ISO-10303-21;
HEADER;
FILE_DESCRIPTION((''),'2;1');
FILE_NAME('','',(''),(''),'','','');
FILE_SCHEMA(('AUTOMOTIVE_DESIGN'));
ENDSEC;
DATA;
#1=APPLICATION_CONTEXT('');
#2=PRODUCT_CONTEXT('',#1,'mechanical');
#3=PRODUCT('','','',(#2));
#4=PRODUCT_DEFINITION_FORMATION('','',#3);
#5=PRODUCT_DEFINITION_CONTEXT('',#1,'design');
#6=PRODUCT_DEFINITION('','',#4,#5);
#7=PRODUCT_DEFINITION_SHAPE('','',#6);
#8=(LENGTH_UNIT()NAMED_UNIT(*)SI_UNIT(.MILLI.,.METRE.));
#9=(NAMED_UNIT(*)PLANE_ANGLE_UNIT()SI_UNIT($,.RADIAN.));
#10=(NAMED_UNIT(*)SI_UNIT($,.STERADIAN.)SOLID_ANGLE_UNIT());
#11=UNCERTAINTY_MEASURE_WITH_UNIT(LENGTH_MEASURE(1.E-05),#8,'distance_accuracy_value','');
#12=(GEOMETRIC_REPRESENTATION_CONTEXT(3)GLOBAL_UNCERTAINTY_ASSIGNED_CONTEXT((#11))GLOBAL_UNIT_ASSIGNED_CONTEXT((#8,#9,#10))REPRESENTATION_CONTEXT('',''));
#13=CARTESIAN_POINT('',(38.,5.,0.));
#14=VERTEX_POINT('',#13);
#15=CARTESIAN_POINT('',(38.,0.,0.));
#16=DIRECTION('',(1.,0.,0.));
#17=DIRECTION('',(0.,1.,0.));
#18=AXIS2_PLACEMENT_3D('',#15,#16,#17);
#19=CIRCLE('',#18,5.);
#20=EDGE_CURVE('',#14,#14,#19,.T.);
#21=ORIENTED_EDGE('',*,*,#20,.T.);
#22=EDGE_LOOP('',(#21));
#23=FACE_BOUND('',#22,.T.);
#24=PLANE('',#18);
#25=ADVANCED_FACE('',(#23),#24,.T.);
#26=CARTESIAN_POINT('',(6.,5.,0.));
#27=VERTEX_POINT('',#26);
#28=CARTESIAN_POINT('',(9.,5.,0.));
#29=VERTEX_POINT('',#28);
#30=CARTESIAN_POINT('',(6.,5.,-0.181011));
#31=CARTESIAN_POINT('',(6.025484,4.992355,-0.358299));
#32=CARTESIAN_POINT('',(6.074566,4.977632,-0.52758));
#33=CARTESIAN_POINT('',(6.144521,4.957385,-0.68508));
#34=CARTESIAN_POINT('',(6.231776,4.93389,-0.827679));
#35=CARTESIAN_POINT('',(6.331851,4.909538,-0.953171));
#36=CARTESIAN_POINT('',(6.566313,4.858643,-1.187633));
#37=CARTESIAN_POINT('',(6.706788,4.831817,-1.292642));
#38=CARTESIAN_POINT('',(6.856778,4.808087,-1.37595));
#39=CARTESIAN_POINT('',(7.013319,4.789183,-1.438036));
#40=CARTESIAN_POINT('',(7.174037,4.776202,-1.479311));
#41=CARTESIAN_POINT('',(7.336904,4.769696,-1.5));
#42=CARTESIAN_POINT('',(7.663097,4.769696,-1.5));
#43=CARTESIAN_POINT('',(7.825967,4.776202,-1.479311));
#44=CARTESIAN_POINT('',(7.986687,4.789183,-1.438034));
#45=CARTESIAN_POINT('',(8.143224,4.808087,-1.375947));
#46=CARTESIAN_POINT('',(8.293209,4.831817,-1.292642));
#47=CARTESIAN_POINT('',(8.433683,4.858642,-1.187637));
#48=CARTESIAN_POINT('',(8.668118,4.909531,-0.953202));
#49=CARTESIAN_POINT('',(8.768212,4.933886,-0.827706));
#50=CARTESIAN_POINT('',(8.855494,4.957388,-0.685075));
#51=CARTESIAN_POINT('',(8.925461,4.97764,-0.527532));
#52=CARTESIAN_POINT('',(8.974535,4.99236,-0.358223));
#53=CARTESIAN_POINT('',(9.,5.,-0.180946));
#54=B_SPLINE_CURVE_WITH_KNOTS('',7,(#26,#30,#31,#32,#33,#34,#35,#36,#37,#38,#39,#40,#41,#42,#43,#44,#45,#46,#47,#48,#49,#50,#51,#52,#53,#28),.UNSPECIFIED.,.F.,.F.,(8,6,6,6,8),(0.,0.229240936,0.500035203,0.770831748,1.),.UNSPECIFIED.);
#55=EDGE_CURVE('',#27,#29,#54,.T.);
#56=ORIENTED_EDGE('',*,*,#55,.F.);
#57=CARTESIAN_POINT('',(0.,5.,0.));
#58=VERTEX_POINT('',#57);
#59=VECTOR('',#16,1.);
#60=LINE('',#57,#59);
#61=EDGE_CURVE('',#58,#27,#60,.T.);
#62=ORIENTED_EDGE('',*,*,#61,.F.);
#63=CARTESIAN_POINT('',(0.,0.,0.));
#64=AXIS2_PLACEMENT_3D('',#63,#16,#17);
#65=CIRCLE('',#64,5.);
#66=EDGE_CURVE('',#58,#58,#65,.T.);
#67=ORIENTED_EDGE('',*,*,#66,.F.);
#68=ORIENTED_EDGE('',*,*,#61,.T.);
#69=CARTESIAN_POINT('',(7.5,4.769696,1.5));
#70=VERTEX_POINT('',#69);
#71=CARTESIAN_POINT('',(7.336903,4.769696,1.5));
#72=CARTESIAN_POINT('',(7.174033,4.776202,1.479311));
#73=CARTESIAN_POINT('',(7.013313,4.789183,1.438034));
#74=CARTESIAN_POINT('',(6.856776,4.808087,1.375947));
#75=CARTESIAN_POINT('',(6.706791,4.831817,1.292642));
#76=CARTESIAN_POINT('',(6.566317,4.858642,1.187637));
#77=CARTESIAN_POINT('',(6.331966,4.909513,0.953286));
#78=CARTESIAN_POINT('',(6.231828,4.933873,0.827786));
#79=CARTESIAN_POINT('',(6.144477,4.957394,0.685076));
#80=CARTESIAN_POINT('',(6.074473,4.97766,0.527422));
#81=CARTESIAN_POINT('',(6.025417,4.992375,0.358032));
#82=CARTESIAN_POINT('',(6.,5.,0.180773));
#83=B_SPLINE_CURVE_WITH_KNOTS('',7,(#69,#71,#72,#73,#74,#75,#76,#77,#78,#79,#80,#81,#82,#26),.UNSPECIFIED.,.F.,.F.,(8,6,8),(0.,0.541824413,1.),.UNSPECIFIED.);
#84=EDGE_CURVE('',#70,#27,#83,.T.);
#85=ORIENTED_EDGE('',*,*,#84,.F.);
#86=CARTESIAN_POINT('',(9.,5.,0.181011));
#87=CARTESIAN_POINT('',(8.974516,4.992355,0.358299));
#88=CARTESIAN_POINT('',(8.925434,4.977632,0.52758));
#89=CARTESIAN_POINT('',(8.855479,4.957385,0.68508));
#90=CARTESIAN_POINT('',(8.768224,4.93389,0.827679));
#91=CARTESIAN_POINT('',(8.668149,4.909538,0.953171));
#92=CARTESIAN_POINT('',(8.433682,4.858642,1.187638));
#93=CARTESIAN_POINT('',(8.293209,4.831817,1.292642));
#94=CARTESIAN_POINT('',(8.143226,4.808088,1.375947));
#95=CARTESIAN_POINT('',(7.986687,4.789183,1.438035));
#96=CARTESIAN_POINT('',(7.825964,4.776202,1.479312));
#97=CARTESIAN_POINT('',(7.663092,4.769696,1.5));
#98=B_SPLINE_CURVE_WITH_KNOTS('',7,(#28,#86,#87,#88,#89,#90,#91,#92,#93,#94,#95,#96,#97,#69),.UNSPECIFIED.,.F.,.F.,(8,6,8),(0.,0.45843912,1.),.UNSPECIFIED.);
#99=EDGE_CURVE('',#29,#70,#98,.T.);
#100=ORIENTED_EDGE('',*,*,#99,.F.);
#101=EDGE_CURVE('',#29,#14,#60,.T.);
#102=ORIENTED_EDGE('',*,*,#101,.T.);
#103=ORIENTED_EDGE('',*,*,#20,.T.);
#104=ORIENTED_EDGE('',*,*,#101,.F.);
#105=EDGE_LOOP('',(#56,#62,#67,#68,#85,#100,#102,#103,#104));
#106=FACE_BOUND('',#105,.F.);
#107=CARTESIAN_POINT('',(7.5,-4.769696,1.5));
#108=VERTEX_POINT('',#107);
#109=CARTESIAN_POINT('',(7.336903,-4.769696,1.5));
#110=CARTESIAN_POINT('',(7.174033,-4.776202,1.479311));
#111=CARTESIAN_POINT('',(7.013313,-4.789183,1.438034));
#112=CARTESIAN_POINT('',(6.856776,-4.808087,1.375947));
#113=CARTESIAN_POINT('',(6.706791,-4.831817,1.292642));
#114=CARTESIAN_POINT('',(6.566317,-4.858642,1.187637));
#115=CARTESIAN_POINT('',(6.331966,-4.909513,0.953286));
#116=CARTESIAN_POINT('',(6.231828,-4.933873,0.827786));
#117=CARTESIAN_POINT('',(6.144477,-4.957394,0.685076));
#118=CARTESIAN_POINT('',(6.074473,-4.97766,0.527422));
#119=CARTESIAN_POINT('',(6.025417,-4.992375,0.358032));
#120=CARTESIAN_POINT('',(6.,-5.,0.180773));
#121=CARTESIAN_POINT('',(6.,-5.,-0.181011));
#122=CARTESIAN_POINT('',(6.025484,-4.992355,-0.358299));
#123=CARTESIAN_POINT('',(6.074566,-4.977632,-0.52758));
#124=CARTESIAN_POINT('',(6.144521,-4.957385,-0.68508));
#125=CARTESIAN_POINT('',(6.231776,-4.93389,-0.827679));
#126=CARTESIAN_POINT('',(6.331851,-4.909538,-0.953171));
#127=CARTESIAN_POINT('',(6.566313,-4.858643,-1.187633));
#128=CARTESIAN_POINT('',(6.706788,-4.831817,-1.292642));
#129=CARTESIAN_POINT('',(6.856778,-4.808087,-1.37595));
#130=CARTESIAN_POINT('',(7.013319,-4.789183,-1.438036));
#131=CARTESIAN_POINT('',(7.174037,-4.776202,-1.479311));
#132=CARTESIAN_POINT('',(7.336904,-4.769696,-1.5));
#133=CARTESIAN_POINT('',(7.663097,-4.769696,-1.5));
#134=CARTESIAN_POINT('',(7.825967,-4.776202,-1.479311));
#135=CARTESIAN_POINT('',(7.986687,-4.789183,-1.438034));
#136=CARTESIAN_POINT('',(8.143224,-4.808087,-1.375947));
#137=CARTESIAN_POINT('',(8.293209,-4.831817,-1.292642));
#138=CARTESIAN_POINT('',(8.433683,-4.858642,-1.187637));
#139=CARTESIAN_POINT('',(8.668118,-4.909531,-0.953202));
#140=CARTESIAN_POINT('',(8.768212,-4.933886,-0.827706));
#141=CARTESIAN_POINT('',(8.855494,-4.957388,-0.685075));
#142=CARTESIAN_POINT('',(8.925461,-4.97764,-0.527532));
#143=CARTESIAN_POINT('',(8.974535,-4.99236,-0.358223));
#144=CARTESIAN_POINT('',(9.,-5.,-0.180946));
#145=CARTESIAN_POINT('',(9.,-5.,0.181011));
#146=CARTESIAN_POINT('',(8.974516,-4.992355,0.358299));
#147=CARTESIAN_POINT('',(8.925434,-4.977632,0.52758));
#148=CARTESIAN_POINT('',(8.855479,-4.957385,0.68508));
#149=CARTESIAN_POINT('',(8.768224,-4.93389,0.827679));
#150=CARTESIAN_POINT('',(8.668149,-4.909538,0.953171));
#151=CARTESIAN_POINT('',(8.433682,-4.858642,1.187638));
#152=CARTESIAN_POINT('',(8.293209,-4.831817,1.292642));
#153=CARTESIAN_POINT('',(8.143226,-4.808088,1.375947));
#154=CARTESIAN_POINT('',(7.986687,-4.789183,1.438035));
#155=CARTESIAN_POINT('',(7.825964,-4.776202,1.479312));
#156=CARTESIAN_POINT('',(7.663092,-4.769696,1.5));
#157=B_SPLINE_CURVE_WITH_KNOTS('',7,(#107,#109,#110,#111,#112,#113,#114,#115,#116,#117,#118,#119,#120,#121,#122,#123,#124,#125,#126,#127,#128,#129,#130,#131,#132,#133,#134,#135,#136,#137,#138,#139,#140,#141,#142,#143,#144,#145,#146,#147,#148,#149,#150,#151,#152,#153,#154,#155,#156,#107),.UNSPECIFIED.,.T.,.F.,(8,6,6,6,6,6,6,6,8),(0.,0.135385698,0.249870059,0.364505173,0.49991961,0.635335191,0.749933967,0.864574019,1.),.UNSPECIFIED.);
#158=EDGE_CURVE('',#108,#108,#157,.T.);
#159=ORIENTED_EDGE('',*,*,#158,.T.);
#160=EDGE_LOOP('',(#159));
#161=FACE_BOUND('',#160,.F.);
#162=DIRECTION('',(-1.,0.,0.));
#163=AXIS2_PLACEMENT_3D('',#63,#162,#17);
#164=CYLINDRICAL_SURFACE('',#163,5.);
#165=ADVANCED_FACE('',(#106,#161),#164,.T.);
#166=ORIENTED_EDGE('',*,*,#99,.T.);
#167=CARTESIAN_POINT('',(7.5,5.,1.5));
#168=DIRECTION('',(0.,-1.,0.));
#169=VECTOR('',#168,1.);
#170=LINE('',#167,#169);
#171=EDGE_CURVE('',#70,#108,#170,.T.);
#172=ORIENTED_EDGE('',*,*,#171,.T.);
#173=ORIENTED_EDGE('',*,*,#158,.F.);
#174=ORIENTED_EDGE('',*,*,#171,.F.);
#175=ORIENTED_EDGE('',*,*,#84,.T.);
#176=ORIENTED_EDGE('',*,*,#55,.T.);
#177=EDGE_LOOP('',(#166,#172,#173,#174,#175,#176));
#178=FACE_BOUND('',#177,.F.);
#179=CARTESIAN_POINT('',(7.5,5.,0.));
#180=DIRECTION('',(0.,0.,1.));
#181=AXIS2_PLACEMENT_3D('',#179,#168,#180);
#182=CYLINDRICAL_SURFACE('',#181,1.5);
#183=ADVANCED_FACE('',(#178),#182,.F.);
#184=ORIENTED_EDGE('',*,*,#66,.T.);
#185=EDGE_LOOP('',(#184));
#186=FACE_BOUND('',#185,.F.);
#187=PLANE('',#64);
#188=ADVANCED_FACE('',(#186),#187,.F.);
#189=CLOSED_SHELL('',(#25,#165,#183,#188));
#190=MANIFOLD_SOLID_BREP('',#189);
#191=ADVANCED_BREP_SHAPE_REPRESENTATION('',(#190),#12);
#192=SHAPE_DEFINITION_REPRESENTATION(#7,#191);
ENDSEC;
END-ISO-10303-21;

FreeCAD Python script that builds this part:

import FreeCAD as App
import Part
import Sketcher

V = App.Vector
Q = App.Units.Quantity

doc = App.newDocument("Part")
params = doc.addObject("Spreadsheet::Sheet", "Params")
for row, (alias, value) in enumerate([
    ("sketch1_diameter", "10 mm"),
    ("pad1_length", "38 mm"),
    ("sketch2_diameter", "3 mm"),
    ("hole_diameter", "3 mm"),
], start=1):
    params.set(f"A{row}", alias)
    params.set(f"B{row}", "=" + value)
    params.setAlias(f"B{row}", alias)

body = doc.addObject("PartDesign::Body", "Body")

sketch1 = body.newObject("Sketcher::SketchObject", "Sketch")
sketch1.AttachmentSupport = (doc.getObject("YZ_Plane"), [""])
sketch1.MapMode = "FlatFace"
sketch1.addGeometry(Part.Circle(V(0, 0, 0), V(0, 0, 1), 5), False)
sketch1.addConstraint([
    Sketcher.Constraint("Coincident", 0, 3, -1, 1),
    Sketcher.Constraint("Diameter", 0, Q("10 mm")),
])
sketch1.setExpression("Constraints[1]", "Params.sketch1_diameter")
pad1 = body.newObject("PartDesign::Pad", "Pad")
pad1.Profile = sketch1
pad1.setExpression("Length", "Params.pad1_length")

sketch2 = body.newObject("Sketcher::SketchObject", "Sketch001")
sketch2.AttachmentSupport = (doc.getObject("XZ_Plane"), [""])
sketch2.MapMode = "FlatFace"
sketch2.AttachmentOffset = App.Placement(V(0, 0, -5), App.Rotation())
sketch2.addGeometry(Part.Circle(V(7.5, 0, 0), V(0, 0, 1), 1.5), False)
sketch2.addConstraint([
    Sketcher.Constraint("PointOnObject", 0, 3, -1),
    Sketcher.Constraint("Diameter", 0, Q("3 mm")),
    Sketcher.Constraint("DistanceX", -1, 1, 0, 3, Q("7.5 mm")),
])
sketch2.setExpression("Constraints[1]", "Params.sketch2_diameter")
doc.recompute()
hole = body.newObject("PartDesign::Hole", "Hole")
hole.Profile = sketch2
hole.ThreadType = "None"
hole.setExpression("Diameter", "Params.hole_diameter")
hole.DepthType = "ThroughAll"
hole.Reversed = True

doc.recompute()
